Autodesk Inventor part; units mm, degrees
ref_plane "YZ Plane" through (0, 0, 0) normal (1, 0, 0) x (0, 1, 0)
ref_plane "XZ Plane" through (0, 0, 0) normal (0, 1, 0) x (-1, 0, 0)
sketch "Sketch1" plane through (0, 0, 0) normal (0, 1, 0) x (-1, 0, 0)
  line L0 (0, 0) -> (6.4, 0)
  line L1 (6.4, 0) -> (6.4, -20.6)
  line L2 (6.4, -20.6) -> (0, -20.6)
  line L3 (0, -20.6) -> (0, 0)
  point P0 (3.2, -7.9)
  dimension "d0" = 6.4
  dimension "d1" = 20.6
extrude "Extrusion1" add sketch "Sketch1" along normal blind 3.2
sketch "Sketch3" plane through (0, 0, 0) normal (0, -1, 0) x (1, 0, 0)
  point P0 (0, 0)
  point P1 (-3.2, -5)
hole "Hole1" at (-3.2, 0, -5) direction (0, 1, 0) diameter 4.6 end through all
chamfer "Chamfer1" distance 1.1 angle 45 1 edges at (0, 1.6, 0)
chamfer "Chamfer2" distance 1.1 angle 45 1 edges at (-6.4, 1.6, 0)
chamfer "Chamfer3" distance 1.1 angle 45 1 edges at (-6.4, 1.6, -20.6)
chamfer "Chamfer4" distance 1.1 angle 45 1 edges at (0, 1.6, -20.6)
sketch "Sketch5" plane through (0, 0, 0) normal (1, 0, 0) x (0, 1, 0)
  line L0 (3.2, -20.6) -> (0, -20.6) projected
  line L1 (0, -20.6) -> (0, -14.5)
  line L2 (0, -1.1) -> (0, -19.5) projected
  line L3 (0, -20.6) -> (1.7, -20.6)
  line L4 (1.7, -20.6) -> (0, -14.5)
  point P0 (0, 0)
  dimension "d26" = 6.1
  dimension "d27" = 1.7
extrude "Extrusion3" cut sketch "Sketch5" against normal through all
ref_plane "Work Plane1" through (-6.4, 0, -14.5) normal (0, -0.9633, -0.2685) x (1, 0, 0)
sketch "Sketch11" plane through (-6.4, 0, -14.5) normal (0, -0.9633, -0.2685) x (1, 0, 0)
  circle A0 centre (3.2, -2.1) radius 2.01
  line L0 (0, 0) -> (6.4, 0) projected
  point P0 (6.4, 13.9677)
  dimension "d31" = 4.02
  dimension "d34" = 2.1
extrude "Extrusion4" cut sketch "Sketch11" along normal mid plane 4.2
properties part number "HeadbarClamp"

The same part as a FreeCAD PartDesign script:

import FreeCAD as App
import Part
import Sketcher

V = App.Vector


def edges_at(feature, points):
    """Names of the edges that pass closest to the given points."""
    edges = feature.Shape.Edges
    near = lambda p: min(range(len(edges)), key=lambda i: edges[i].distToShape(Part.Vertex(*p))[0])
    return sorted({f"Edge{near(p) + 1}" for p in points})

doc = App.newDocument("Part")
body = doc.addObject("PartDesign::Body", "Body")

# Sketch on XZ plane
sketch1 = body.newObject("Sketcher::SketchObject", "Sketch")
sketch1.AttachmentSupport = (doc.getObject("XZ_Plane"), [""])
sketch1.MapMode = "FlatFace"
sketch1.addGeometry(Part.LineSegment(V(-6, 0, 0), V(0, 0, 0)), False)
sketch1.addGeometry(Part.LineSegment(V(0, 0, 0), V(0, -21, 0)), False)
sketch1.addGeometry(Part.LineSegment(V(0, -21, 0), V(-6, -21, 0)), False)
sketch1.addGeometry(Part.LineSegment(V(-6, -21, 0), V(-6, 0, 0)), False)
sketch1.addConstraint(Sketcher.Constraint("Coincident", 0, 2, 1, 1))
sketch1.addConstraint(Sketcher.Constraint("Coincident", 1, 2, 2, 1))
sketch1.addConstraint(Sketcher.Constraint("Coincident", 2, 2, 3, 1))
sketch1.addConstraint(Sketcher.Constraint("Coincident", 3, 2, 0, 1))
sketch1.addConstraint(Sketcher.Constraint("Horizontal", 0))
sketch1.addConstraint(Sketcher.Constraint("Vertical", 1))
sketch1.addConstraint(Sketcher.Constraint("Horizontal", 2))
sketch1.addConstraint(Sketcher.Constraint("Vertical", 3))
sketch1.addConstraint(Sketcher.Constraint("Coincident", 0, 2, -1, 1))
sketch1.addConstraint(Sketcher.Constraint("DistanceX", 0, 1, 0, 2, 6.4))
sketch1.addConstraint(Sketcher.Constraint("DistanceY", 1, 2, 1, 1, 20.6))
pad1 = body.newObject("PartDesign::Pad", "Pad")
pad1.Profile = sketch1
pad1.Length = 3.2
pad1.Reversed = True

# Sketch on XZ plane
sketch2 = body.newObject("Sketcher::SketchObject", "Sketch001")
sketch2.AttachmentSupport = (doc.getObject("XZ_Plane"), [""])
sketch2.MapMode = "FlatFace"
sketch2.addGeometry(Part.Circle(V(-3.2, -5, 0), V(0, 0, 1), 2.3), False)
sketch2.addConstraint(Sketcher.Constraint("Diameter", 0, 4.6))
sketch2.addConstraint(Sketcher.Constraint("DistanceY", 0, 3, -1, 1, 5.0))
sketch2.addConstraint(Sketcher.Constraint("DistanceX", 0, 3, -1, 1, 3.2))
doc.recompute()
hole = body.newObject("PartDesign::Hole", "Hole")
hole.Profile = sketch2
hole.ThreadType = "None"
hole.Diameter = 4.6
hole.DepthType = "ThroughAll"
doc.recompute()

chamfer = body.newObject("PartDesign::Chamfer", "Chamfer")
chamfer.Base = (hole, edges_at(hole, [(0, 1.6, 0)]))
chamfer.Size = 1.1
doc.recompute()

chamfer2 = body.newObject("PartDesign::Chamfer", "Chamfer001")
chamfer2.Base = (chamfer, edges_at(chamfer, [(-6.4, 1.6, 0)]))
chamfer2.Size = 1.1
doc.recompute()

chamfer3 = body.newObject("PartDesign::Chamfer", "Chamfer002")
chamfer3.Base = (chamfer2, edges_at(chamfer2, [(-6.4, 1.6, -20.6)]))
chamfer3.Size = 1.1
doc.recompute()

chamfer4 = body.newObject("PartDesign::Chamfer", "Chamfer003")
chamfer4.Base = (chamfer3, edges_at(chamfer3, [(0, 1.6, -20.6)]))
chamfer4.Size = 1.1

# Sketch on YZ plane
sketch3 = body.newObject("Sketcher::SketchObject", "Sketch002")
sketch3.AttachmentSupport = (doc.getObject("YZ_Plane"), [""])
sketch3.MapMode = "FlatFace"
sketch3.addGeometry(Part.LineSegment(V(0, -20.6, 0), V(1.7, -20.6, 0)), False)
sketch3.addGeometry(Part.LineSegment(V(1.7, -20.6, 0), V(0, -14.5, 0)), False)
sketch3.addGeometry(Part.LineSegment(V(0, -14.5, 0), V(0, -20.6, 0)), False)
sketch3.addConstraint(Sketcher.Constraint("Coincident", 0, 2, 1, 1))
sketch3.addConstraint(Sketcher.Constraint("Coincident", 1, 2, 2, 1))
sketch3.addConstraint(Sketcher.Constraint("Coincident", 2, 2, 0, 1))
sketch3.addConstraint(Sketcher.Constraint("Horizontal", 0))
sketch3.addConstraint(Sketcher.Constraint("Vertical", 2))
sketch3.addConstraint(Sketcher.Constraint("PointOnObject", 1, 2, -2))
sketch3.addConstraint(Sketcher.Constraint("DistanceX", 0, 1, 0, 2, 1.7))
sketch3.addConstraint(Sketcher.Constraint("DistanceY", 2, 2, 2, 1, 6.1))
sketch3.addConstraint(Sketcher.Constraint("DistanceY", 0, 2, -1, 1, 20.6))
pocket1 = body.newObject("PartDesign::Pocket", "Pocket")
pocket1.Profile = sketch3
pocket1.Type = "ThroughAll"

# Sketch on an angled plane
sketch4 = body.newObject("Sketcher::SketchObject", "Sketch003")
sketch4.Placement = App.Placement(V(-6.4, 0, -14.5), App.Rotation(V(1, 0, 0), V(0, -0.268494746, 0.963281149), V(0, -0.963281149, -0.268494746), "ZXY"))
sketch4.addGeometry(Part.Circle(V(3.2, -2.1, 0), V(0, 0, 1), 2), False)
sketch4.addConstraint(Sketcher.Constraint("Diameter", 0, 4.02))
sketch4.addConstraint(Sketcher.Constraint("DistanceY", 0, 3, -1, 1, 2.1))
sketch4.addConstraint(Sketcher.Constraint("DistanceX", -1, 1, 0, 3, 3.2))
pocket2 = body.newObject("PartDesign::Pocket", "Pocket001")
pocket2.Profile = sketch4
pocket2.Length = 4.2
pocket2.Midplane = True

doc.recompute()
